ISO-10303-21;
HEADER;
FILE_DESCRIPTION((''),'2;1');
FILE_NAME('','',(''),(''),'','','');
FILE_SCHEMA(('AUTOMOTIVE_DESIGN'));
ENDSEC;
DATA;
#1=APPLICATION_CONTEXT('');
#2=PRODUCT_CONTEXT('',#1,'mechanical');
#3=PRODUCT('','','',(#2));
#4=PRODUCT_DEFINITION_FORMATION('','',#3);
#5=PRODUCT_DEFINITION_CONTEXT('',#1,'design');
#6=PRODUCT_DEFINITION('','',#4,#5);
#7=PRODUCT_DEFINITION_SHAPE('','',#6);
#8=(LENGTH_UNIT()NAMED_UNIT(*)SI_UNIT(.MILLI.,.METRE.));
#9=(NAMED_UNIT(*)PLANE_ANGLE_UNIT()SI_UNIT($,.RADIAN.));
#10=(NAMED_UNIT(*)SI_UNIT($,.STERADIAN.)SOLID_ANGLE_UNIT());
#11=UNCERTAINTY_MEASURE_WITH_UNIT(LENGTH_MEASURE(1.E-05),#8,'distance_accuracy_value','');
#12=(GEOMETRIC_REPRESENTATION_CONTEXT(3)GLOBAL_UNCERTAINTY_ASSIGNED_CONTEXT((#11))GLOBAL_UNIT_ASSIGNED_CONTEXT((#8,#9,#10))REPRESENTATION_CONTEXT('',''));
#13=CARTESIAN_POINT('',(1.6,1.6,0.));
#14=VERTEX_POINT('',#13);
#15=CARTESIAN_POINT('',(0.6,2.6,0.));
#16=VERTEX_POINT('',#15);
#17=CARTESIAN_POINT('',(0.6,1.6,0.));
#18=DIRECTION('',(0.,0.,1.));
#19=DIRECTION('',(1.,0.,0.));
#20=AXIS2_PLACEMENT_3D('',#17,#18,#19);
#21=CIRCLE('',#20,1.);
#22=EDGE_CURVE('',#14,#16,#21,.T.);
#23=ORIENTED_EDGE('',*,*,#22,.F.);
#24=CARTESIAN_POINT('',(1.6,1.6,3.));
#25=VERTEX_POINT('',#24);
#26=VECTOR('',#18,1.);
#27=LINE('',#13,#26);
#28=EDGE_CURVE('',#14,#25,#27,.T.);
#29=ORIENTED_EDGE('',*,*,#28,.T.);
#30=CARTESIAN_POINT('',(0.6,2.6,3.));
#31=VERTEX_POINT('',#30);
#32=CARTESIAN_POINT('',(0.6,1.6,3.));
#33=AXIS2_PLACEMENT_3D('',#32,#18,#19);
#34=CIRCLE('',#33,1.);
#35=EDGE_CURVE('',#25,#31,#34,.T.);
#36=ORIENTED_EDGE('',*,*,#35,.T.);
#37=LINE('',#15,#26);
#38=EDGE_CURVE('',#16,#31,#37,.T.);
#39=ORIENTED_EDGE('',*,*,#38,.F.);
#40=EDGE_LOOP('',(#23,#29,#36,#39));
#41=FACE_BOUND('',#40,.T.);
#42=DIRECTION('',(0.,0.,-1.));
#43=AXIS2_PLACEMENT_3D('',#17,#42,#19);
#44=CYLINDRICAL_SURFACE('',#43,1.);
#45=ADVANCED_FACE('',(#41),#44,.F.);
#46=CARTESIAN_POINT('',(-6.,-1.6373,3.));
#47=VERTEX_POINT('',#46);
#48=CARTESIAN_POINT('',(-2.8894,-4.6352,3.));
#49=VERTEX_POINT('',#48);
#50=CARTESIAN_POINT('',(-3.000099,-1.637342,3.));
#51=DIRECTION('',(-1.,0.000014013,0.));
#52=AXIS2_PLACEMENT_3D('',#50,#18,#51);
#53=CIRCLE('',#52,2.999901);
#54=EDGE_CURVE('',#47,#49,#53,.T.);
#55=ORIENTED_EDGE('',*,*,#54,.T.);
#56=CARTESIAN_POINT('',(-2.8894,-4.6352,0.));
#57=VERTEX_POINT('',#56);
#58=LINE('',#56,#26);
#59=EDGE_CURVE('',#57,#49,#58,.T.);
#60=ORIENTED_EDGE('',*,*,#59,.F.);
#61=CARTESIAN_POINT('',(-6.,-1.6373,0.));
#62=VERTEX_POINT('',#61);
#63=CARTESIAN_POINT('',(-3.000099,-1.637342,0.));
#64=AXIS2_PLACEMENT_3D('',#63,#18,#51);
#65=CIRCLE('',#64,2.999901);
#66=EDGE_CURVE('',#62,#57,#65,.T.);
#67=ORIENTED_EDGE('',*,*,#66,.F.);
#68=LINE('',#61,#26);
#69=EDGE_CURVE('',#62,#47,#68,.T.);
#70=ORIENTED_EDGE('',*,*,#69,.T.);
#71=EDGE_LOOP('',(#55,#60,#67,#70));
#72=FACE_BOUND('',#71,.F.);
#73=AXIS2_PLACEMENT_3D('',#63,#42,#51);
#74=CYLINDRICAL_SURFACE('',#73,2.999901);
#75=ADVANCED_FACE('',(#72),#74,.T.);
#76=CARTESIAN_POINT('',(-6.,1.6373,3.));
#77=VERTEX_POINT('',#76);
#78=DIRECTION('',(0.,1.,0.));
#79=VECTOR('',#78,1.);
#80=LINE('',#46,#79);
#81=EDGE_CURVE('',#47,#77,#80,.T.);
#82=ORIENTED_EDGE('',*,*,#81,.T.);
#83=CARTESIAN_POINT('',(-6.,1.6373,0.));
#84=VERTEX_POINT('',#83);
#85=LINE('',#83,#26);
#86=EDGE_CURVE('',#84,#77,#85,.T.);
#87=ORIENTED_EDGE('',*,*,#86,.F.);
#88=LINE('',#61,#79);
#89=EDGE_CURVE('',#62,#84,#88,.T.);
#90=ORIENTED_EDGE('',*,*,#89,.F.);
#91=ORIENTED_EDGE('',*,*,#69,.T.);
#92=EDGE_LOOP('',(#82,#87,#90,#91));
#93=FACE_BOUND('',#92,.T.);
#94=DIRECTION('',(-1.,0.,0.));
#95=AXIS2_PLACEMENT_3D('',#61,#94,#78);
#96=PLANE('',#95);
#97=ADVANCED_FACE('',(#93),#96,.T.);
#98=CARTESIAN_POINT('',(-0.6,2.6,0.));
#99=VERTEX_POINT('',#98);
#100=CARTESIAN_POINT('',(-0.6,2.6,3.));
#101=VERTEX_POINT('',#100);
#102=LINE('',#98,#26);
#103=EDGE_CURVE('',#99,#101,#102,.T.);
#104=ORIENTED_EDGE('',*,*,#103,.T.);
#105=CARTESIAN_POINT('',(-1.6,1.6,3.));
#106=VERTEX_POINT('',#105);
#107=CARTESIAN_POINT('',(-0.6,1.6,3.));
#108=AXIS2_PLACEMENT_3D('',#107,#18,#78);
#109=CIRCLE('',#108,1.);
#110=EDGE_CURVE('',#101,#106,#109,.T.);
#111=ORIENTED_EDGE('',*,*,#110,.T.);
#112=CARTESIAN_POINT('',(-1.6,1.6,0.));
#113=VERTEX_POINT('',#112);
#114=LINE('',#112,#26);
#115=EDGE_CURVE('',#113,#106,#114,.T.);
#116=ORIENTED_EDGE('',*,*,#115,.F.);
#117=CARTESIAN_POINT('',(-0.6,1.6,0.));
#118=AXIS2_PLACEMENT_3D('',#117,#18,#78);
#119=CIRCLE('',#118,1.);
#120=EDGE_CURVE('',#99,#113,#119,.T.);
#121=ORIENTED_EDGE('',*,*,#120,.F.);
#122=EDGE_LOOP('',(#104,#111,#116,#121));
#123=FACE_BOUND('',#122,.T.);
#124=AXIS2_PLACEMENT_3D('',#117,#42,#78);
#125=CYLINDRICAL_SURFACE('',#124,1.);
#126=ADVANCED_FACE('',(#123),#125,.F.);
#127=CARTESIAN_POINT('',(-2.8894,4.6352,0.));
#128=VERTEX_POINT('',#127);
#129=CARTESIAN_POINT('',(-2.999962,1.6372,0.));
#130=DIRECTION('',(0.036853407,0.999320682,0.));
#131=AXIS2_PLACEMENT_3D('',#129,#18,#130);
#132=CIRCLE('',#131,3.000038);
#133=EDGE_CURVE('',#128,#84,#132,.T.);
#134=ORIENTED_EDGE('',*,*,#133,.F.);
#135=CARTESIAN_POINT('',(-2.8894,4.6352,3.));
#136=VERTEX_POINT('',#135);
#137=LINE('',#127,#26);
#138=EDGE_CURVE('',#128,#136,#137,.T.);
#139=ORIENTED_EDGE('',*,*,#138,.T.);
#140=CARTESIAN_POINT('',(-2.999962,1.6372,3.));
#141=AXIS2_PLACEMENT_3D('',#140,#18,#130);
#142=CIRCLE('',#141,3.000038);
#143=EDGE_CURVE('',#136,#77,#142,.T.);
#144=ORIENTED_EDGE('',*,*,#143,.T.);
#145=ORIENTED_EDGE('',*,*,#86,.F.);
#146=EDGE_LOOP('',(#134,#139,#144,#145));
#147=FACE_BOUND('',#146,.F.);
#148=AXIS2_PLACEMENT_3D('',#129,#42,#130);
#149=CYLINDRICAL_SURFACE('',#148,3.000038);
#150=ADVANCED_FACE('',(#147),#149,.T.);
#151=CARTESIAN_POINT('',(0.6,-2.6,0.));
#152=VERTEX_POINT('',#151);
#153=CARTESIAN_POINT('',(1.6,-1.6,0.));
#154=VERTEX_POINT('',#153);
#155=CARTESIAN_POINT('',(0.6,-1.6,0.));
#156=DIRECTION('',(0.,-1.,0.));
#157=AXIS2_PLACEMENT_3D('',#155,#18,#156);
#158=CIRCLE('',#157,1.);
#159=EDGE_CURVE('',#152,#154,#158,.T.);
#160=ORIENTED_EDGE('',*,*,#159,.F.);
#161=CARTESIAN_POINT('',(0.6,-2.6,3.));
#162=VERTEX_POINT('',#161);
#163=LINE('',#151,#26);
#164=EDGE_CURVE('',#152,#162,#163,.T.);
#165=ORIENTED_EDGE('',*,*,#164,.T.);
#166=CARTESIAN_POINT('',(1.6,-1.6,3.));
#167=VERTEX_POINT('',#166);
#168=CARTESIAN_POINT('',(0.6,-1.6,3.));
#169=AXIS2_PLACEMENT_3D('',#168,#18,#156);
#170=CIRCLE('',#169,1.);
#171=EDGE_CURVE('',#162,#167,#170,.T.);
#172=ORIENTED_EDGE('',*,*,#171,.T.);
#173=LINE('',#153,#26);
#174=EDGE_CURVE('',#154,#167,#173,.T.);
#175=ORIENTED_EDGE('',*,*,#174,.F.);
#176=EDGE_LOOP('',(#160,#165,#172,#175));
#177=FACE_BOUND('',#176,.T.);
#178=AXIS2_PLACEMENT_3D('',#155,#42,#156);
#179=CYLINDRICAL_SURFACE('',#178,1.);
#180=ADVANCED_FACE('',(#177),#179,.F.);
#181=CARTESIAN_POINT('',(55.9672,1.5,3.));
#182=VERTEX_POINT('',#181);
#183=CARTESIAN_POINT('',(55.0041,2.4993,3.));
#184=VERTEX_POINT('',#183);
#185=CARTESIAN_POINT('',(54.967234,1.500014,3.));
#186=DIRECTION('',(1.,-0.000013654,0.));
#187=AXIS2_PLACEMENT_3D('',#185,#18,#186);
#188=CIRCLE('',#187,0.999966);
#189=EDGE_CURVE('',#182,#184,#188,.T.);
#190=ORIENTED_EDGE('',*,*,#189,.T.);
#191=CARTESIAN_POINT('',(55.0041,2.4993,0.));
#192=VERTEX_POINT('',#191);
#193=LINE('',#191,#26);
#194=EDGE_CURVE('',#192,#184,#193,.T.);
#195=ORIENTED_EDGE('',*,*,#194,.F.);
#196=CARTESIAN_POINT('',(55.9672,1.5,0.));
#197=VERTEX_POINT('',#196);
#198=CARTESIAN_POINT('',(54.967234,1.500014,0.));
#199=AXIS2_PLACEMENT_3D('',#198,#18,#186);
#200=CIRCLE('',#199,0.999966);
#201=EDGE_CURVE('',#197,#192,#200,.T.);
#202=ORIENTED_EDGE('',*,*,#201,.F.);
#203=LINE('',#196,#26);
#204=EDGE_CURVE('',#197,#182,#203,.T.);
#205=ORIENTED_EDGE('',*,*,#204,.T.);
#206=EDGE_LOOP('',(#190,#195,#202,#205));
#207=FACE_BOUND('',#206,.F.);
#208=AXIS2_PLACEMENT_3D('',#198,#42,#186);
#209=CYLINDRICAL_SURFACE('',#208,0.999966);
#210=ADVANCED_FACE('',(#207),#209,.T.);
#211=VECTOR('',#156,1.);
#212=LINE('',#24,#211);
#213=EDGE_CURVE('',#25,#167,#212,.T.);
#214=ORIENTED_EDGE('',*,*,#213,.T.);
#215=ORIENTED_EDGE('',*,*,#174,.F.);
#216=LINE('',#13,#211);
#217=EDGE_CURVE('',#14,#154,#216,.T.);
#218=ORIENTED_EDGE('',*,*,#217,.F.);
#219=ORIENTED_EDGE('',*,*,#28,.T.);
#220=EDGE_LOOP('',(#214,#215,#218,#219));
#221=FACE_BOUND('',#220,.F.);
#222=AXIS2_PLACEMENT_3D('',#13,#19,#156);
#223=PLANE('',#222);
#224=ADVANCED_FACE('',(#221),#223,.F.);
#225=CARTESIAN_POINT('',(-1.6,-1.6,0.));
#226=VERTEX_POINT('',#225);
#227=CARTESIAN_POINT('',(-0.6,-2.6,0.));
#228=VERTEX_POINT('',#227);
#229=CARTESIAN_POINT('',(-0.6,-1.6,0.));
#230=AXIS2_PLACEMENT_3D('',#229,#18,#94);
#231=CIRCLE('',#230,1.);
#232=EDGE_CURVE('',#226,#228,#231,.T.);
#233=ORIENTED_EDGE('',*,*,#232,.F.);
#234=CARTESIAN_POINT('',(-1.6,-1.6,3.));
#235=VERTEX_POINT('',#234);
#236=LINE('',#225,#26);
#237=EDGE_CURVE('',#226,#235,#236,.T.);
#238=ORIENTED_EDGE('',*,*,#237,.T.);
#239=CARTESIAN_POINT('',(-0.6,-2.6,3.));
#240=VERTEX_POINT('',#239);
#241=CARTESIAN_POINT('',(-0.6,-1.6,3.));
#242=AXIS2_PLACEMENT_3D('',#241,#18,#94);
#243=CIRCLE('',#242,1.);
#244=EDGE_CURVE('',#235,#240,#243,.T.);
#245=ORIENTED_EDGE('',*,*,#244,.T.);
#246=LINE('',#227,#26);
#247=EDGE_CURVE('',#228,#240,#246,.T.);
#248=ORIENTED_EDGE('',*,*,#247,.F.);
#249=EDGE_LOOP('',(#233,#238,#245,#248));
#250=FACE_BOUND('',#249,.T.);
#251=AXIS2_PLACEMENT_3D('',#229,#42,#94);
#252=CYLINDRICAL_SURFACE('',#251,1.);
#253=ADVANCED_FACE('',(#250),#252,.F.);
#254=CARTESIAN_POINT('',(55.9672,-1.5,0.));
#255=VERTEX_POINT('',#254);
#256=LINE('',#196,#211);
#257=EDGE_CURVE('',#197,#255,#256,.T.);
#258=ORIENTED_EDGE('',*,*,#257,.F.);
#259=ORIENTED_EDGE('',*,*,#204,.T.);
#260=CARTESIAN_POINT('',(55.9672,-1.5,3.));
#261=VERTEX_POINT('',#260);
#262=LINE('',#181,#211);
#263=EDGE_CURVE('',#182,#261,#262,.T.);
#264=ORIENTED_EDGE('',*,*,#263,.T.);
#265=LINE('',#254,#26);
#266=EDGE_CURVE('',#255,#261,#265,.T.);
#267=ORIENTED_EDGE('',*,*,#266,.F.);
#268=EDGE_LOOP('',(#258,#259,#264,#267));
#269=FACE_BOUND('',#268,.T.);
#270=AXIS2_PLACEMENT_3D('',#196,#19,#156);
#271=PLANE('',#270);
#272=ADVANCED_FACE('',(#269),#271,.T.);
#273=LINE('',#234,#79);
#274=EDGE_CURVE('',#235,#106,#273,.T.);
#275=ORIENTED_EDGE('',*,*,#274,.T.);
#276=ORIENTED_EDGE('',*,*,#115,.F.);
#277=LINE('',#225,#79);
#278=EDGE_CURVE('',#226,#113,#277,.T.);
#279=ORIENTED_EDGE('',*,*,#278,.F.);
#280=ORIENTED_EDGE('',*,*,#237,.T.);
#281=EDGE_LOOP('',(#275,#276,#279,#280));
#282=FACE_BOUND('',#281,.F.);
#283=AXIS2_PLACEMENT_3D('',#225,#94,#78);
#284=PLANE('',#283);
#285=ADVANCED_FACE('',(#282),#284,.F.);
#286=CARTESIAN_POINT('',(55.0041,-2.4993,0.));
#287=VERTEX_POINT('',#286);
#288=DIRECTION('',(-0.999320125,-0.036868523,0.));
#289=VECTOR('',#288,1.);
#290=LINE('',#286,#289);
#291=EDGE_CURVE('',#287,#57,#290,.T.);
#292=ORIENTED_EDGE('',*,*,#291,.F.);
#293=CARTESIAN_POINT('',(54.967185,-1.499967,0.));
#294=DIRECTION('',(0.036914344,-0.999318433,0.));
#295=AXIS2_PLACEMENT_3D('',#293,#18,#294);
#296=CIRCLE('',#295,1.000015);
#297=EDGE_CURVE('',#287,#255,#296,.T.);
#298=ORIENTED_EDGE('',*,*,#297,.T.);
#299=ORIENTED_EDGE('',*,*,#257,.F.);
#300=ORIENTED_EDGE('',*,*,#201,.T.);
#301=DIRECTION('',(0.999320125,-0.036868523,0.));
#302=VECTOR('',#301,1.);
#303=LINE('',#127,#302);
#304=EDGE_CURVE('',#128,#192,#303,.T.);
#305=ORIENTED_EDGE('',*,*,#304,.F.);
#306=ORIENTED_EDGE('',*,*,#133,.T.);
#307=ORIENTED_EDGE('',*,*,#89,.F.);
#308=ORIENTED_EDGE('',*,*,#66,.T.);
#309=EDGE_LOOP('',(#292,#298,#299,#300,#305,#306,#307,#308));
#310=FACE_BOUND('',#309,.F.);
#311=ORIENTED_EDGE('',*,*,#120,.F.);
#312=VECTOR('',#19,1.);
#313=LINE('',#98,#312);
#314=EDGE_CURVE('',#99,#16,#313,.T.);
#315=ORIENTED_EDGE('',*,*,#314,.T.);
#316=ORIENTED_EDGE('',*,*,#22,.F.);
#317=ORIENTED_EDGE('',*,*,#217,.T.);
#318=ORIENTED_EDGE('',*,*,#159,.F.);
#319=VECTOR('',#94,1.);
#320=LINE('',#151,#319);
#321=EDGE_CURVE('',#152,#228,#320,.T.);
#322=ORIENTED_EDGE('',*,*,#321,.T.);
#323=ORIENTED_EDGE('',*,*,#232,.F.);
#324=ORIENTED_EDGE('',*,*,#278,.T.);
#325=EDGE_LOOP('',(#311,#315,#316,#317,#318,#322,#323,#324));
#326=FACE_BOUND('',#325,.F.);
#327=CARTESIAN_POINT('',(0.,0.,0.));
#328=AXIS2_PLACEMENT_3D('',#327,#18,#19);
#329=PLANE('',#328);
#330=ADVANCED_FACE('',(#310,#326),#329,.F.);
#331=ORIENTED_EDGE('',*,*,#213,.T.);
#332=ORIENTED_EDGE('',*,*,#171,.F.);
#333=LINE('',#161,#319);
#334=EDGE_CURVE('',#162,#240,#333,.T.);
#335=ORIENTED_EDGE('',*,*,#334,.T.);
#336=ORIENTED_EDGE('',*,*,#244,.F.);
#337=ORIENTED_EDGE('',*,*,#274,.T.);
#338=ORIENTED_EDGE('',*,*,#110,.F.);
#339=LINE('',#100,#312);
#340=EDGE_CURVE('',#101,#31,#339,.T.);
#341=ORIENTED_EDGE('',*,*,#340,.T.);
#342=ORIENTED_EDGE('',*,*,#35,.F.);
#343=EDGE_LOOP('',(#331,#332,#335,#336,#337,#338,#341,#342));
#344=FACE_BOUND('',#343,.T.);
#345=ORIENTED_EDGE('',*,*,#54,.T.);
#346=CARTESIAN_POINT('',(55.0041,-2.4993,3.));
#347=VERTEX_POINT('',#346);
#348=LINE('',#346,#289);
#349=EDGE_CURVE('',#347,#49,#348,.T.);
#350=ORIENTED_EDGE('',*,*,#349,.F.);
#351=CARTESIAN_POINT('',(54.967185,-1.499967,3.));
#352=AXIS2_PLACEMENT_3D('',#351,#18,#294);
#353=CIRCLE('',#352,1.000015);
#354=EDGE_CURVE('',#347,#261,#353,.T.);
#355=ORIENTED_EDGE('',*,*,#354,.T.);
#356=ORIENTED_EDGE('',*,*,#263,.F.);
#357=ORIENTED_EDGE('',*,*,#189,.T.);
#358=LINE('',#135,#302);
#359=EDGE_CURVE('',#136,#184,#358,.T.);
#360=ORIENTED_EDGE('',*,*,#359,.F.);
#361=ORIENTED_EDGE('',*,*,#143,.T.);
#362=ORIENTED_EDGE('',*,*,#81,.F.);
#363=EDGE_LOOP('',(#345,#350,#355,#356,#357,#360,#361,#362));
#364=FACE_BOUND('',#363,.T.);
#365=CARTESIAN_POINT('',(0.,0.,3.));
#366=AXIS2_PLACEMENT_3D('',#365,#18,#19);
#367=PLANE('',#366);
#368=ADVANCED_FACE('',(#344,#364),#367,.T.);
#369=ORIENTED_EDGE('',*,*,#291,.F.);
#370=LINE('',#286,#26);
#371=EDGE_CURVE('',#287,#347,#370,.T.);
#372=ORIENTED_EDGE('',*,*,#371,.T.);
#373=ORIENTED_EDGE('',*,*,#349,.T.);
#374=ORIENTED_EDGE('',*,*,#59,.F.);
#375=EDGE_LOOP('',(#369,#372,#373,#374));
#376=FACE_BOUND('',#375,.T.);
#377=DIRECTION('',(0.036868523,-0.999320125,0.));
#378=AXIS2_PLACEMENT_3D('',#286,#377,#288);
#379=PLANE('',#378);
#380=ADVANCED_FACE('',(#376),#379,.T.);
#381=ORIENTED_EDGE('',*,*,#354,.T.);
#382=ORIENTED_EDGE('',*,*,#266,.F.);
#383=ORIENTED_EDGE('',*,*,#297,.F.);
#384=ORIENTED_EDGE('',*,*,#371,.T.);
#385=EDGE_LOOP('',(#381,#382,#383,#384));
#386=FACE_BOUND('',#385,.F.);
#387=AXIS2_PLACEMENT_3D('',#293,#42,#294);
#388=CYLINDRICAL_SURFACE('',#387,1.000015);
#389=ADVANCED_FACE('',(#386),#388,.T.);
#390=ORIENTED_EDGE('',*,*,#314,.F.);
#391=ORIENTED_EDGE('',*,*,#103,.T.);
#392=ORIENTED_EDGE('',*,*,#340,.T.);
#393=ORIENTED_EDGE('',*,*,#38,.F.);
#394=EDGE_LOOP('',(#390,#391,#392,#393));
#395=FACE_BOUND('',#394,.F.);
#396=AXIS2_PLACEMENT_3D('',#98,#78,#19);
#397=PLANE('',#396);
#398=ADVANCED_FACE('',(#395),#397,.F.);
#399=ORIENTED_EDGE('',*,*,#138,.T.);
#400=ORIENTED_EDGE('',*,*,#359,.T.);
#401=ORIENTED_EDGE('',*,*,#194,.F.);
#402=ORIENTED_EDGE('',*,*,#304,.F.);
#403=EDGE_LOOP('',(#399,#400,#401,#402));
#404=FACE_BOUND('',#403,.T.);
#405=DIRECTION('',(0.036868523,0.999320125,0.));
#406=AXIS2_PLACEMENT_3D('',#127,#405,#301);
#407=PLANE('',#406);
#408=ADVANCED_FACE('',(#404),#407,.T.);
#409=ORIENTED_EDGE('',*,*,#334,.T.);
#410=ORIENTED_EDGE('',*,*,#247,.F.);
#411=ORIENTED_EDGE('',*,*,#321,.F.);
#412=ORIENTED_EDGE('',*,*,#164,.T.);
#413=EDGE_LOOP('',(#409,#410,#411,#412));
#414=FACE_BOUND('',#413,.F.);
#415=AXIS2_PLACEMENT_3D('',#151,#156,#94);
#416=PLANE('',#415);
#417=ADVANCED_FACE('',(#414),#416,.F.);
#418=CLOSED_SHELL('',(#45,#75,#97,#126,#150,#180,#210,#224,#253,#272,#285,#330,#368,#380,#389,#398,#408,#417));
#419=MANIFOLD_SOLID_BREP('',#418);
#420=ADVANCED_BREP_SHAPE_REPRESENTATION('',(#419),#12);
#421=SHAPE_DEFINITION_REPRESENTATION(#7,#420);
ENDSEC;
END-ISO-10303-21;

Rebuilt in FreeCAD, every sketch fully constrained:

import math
import FreeCAD as App
import Part
import Sketcher

V = App.Vector

doc = App.newDocument("Part")
body = doc.addObject("PartDesign::Body", "Body")

# Sketch on XY plane
sketch1 = doc.addObject("Sketcher::SketchObject", "Sketch")
body.addObject(sketch1)
sketch1.AttachmentSupport = (doc.XY_Plane, [""])
sketch1.MapMode = "FlatFace"
sketch1.addGeometry(Part.LineSegment(V(55, 2.5, 0), V(-2.9, 4.6, 0)), False)
sketch1.addGeometry(Part.ArcOfCircle(Part.Circle(V(-3, 1.6, 0), V(0, 0, 1), 3), math.radians(88), math.radians(180)), False)
sketch1.addGeometry(Part.LineSegment(V(-6, 1.6, 0), V(-6, -1.6, 0)), False)
sketch1.addGeometry(Part.ArcOfCircle(Part.Circle(V(-3, -1.6, 0), V(0, 0, 1), 3), math.radians(180), math.radians(272)), False)
sketch1.addGeometry(Part.LineSegment(V(-2.9, -4.6, 0), V(55, -2.5, 0)), False)
sketch1.addGeometry(Part.ArcOfCircle(Part.Circle(V(55, -1.5, 0), V(0, 0, 1), 1), math.radians(-88), math.radians(0)), False)
sketch1.addGeometry(Part.LineSegment(V(56, -1.5, 0), V(56, 1.5, 0)), False)
sketch1.addGeometry(Part.ArcOfCircle(Part.Circle(V(55, 1.5, 0), V(0, 0, 1), 1), math.radians(0), math.radians(88)), False)
sketch1.addGeometry(Part.ArcOfCircle(Part.Circle(V(-0.6, 1.6, 0), V(0, 0, 1), 1), math.radians(90), math.radians(180)), False)
sketch1.addGeometry(Part.LineSegment(V(-0.6, 2.6, 0), V(0.6, 2.6, 0)), False)
sketch1.addGeometry(Part.ArcOfCircle(Part.Circle(V(0.6, 1.6, 0), V(0, 0, 1), 1), math.radians(0), math.radians(90)), False)
sketch1.addGeometry(Part.LineSegment(V(1.6, 1.6, 0), V(1.6, -1.6, 0)), False)
sketch1.addGeometry(Part.ArcOfCircle(Part.Circle(V(0.6, -1.6, 0), V(0, 0, 1), 1), math.radians(-90), math.radians(0)), False)
sketch1.addGeometry(Part.LineSegment(V(0.6, -2.6, 0), V(-0.6, -2.6, 0)), False)
sketch1.addGeometry(Part.ArcOfCircle(Part.Circle(V(-0.6, -1.6, 0), V(0, 0, 1), 1), math.radians(180), math.radians(270)), False)
sketch1.addGeometry(Part.LineSegment(V(-1.6, -1.6, 0), V(-1.6, 1.6, 0)), False)
sketch1.addConstraint(Sketcher.Constraint("Tangent", 0, 2, 1, 1))
sketch1.addConstraint(Sketcher.Constraint("Tangent", 1, 2, 2, 1))
sketch1.addConstraint(Sketcher.Constraint("Tangent", 2, 2, 3, 1))
sketch1.addConstraint(Sketcher.Constraint("Tangent", 3, 2, 4, 1))
sketch1.addConstraint(Sketcher.Constraint("Tangent", 4, 2, 5, 1))
sketch1.addConstraint(Sketcher.Constraint("Tangent", 5, 2, 6, 1))
sketch1.addConstraint(Sketcher.Constraint("Tangent", 6, 2, 7, 1))
sketch1.addConstraint(Sketcher.Constraint("Tangent", 7, 2, 0, 1))
sketch1.addConstraint(Sketcher.Constraint("Tangent", 8, 1, 9, 1))
sketch1.addConstraint(Sketcher.Constraint("Tangent", 9, 2, 10, 2))
sketch1.addConstraint(Sketcher.Constraint("Tangent", 10, 1, 11, 1))
sketch1.addConstraint(Sketcher.Constraint("Tangent", 11, 2, 12, 2))
sketch1.addConstraint(Sketcher.Constraint("Tangent", 12, 1, 13, 1))
sketch1.addConstraint(Sketcher.Constraint("Tangent", 13, 2, 14, 2))
sketch1.addConstraint(Sketcher.Constraint("Tangent", 14, 1, 15, 1))
sketch1.addConstraint(Sketcher.Constraint("Tangent", 15, 2, 8, 2))
sketch1.addConstraint(Sketcher.Constraint("Vertical", 2))
sketch1.addConstraint(Sketcher.Constraint("Vertical", 6))
sketch1.addConstraint(Sketcher.Constraint("Horizontal", 9))
sketch1.addConstraint(Sketcher.Constraint("Vertical", 11))
sketch1.addConstraint(Sketcher.Constraint("Horizontal", 13))
sketch1.addConstraint(Sketcher.Constraint("Vertical", 15))
sketch1.addConstraint(Sketcher.Constraint("Equal", 1, 3))
sketch1.addConstraint(Sketcher.Constraint("Equal", 5, 7))
sketch1.addConstraint(Sketcher.Constraint("Equal", 7, 8))
sketch1.addConstraint(Sketcher.Constraint("Equal", 8, 10))
sketch1.addConstraint(Sketcher.Constraint("Equal", 10, 12))
sketch1.addConstraint(Sketcher.Constraint("Equal", 12, 14))
sketch1.addConstraint(Sketcher.Constraint("Symmetric", 8, 3, 12, 3, -1, 1))
sketch1.addConstraint(Sketcher.Constraint("Symmetric", 0, 2, 3, 2, -1))
sketch1.addConstraint(Sketcher.Constraint("Radius", 1, 3.0))
sketch1.addConstraint(Sketcher.Constraint("Radius", 5, 1.0))
sketch1.addConstraint(Sketcher.Constraint("DistanceY", 6, 1, 6, 2, 3.0))
sketch1.addConstraint(Sketcher.Constraint("DistanceY", 11, 2, 11, 1, 3.2))
sketch1.addConstraint(Sketcher.Constraint("DistanceX", 1, 3, -1, 1, 3.0))
sketch1.addConstraint(Sketcher.Constraint("DistanceX", 9, 1, 9, 2, 1.2))
sketch1.addConstraint(Sketcher.Constraint("DistanceY", 2, 2, 2, 1, 3.2746))
sketch1.addConstraint(Sketcher.Constraint("Distance", 0, 57.933))
pad1 = doc.addObject("PartDesign::Pad", "Pad")
body.addObject(pad1)
pad1.Profile = sketch1
pad1.Length = 3

doc.recompute()
